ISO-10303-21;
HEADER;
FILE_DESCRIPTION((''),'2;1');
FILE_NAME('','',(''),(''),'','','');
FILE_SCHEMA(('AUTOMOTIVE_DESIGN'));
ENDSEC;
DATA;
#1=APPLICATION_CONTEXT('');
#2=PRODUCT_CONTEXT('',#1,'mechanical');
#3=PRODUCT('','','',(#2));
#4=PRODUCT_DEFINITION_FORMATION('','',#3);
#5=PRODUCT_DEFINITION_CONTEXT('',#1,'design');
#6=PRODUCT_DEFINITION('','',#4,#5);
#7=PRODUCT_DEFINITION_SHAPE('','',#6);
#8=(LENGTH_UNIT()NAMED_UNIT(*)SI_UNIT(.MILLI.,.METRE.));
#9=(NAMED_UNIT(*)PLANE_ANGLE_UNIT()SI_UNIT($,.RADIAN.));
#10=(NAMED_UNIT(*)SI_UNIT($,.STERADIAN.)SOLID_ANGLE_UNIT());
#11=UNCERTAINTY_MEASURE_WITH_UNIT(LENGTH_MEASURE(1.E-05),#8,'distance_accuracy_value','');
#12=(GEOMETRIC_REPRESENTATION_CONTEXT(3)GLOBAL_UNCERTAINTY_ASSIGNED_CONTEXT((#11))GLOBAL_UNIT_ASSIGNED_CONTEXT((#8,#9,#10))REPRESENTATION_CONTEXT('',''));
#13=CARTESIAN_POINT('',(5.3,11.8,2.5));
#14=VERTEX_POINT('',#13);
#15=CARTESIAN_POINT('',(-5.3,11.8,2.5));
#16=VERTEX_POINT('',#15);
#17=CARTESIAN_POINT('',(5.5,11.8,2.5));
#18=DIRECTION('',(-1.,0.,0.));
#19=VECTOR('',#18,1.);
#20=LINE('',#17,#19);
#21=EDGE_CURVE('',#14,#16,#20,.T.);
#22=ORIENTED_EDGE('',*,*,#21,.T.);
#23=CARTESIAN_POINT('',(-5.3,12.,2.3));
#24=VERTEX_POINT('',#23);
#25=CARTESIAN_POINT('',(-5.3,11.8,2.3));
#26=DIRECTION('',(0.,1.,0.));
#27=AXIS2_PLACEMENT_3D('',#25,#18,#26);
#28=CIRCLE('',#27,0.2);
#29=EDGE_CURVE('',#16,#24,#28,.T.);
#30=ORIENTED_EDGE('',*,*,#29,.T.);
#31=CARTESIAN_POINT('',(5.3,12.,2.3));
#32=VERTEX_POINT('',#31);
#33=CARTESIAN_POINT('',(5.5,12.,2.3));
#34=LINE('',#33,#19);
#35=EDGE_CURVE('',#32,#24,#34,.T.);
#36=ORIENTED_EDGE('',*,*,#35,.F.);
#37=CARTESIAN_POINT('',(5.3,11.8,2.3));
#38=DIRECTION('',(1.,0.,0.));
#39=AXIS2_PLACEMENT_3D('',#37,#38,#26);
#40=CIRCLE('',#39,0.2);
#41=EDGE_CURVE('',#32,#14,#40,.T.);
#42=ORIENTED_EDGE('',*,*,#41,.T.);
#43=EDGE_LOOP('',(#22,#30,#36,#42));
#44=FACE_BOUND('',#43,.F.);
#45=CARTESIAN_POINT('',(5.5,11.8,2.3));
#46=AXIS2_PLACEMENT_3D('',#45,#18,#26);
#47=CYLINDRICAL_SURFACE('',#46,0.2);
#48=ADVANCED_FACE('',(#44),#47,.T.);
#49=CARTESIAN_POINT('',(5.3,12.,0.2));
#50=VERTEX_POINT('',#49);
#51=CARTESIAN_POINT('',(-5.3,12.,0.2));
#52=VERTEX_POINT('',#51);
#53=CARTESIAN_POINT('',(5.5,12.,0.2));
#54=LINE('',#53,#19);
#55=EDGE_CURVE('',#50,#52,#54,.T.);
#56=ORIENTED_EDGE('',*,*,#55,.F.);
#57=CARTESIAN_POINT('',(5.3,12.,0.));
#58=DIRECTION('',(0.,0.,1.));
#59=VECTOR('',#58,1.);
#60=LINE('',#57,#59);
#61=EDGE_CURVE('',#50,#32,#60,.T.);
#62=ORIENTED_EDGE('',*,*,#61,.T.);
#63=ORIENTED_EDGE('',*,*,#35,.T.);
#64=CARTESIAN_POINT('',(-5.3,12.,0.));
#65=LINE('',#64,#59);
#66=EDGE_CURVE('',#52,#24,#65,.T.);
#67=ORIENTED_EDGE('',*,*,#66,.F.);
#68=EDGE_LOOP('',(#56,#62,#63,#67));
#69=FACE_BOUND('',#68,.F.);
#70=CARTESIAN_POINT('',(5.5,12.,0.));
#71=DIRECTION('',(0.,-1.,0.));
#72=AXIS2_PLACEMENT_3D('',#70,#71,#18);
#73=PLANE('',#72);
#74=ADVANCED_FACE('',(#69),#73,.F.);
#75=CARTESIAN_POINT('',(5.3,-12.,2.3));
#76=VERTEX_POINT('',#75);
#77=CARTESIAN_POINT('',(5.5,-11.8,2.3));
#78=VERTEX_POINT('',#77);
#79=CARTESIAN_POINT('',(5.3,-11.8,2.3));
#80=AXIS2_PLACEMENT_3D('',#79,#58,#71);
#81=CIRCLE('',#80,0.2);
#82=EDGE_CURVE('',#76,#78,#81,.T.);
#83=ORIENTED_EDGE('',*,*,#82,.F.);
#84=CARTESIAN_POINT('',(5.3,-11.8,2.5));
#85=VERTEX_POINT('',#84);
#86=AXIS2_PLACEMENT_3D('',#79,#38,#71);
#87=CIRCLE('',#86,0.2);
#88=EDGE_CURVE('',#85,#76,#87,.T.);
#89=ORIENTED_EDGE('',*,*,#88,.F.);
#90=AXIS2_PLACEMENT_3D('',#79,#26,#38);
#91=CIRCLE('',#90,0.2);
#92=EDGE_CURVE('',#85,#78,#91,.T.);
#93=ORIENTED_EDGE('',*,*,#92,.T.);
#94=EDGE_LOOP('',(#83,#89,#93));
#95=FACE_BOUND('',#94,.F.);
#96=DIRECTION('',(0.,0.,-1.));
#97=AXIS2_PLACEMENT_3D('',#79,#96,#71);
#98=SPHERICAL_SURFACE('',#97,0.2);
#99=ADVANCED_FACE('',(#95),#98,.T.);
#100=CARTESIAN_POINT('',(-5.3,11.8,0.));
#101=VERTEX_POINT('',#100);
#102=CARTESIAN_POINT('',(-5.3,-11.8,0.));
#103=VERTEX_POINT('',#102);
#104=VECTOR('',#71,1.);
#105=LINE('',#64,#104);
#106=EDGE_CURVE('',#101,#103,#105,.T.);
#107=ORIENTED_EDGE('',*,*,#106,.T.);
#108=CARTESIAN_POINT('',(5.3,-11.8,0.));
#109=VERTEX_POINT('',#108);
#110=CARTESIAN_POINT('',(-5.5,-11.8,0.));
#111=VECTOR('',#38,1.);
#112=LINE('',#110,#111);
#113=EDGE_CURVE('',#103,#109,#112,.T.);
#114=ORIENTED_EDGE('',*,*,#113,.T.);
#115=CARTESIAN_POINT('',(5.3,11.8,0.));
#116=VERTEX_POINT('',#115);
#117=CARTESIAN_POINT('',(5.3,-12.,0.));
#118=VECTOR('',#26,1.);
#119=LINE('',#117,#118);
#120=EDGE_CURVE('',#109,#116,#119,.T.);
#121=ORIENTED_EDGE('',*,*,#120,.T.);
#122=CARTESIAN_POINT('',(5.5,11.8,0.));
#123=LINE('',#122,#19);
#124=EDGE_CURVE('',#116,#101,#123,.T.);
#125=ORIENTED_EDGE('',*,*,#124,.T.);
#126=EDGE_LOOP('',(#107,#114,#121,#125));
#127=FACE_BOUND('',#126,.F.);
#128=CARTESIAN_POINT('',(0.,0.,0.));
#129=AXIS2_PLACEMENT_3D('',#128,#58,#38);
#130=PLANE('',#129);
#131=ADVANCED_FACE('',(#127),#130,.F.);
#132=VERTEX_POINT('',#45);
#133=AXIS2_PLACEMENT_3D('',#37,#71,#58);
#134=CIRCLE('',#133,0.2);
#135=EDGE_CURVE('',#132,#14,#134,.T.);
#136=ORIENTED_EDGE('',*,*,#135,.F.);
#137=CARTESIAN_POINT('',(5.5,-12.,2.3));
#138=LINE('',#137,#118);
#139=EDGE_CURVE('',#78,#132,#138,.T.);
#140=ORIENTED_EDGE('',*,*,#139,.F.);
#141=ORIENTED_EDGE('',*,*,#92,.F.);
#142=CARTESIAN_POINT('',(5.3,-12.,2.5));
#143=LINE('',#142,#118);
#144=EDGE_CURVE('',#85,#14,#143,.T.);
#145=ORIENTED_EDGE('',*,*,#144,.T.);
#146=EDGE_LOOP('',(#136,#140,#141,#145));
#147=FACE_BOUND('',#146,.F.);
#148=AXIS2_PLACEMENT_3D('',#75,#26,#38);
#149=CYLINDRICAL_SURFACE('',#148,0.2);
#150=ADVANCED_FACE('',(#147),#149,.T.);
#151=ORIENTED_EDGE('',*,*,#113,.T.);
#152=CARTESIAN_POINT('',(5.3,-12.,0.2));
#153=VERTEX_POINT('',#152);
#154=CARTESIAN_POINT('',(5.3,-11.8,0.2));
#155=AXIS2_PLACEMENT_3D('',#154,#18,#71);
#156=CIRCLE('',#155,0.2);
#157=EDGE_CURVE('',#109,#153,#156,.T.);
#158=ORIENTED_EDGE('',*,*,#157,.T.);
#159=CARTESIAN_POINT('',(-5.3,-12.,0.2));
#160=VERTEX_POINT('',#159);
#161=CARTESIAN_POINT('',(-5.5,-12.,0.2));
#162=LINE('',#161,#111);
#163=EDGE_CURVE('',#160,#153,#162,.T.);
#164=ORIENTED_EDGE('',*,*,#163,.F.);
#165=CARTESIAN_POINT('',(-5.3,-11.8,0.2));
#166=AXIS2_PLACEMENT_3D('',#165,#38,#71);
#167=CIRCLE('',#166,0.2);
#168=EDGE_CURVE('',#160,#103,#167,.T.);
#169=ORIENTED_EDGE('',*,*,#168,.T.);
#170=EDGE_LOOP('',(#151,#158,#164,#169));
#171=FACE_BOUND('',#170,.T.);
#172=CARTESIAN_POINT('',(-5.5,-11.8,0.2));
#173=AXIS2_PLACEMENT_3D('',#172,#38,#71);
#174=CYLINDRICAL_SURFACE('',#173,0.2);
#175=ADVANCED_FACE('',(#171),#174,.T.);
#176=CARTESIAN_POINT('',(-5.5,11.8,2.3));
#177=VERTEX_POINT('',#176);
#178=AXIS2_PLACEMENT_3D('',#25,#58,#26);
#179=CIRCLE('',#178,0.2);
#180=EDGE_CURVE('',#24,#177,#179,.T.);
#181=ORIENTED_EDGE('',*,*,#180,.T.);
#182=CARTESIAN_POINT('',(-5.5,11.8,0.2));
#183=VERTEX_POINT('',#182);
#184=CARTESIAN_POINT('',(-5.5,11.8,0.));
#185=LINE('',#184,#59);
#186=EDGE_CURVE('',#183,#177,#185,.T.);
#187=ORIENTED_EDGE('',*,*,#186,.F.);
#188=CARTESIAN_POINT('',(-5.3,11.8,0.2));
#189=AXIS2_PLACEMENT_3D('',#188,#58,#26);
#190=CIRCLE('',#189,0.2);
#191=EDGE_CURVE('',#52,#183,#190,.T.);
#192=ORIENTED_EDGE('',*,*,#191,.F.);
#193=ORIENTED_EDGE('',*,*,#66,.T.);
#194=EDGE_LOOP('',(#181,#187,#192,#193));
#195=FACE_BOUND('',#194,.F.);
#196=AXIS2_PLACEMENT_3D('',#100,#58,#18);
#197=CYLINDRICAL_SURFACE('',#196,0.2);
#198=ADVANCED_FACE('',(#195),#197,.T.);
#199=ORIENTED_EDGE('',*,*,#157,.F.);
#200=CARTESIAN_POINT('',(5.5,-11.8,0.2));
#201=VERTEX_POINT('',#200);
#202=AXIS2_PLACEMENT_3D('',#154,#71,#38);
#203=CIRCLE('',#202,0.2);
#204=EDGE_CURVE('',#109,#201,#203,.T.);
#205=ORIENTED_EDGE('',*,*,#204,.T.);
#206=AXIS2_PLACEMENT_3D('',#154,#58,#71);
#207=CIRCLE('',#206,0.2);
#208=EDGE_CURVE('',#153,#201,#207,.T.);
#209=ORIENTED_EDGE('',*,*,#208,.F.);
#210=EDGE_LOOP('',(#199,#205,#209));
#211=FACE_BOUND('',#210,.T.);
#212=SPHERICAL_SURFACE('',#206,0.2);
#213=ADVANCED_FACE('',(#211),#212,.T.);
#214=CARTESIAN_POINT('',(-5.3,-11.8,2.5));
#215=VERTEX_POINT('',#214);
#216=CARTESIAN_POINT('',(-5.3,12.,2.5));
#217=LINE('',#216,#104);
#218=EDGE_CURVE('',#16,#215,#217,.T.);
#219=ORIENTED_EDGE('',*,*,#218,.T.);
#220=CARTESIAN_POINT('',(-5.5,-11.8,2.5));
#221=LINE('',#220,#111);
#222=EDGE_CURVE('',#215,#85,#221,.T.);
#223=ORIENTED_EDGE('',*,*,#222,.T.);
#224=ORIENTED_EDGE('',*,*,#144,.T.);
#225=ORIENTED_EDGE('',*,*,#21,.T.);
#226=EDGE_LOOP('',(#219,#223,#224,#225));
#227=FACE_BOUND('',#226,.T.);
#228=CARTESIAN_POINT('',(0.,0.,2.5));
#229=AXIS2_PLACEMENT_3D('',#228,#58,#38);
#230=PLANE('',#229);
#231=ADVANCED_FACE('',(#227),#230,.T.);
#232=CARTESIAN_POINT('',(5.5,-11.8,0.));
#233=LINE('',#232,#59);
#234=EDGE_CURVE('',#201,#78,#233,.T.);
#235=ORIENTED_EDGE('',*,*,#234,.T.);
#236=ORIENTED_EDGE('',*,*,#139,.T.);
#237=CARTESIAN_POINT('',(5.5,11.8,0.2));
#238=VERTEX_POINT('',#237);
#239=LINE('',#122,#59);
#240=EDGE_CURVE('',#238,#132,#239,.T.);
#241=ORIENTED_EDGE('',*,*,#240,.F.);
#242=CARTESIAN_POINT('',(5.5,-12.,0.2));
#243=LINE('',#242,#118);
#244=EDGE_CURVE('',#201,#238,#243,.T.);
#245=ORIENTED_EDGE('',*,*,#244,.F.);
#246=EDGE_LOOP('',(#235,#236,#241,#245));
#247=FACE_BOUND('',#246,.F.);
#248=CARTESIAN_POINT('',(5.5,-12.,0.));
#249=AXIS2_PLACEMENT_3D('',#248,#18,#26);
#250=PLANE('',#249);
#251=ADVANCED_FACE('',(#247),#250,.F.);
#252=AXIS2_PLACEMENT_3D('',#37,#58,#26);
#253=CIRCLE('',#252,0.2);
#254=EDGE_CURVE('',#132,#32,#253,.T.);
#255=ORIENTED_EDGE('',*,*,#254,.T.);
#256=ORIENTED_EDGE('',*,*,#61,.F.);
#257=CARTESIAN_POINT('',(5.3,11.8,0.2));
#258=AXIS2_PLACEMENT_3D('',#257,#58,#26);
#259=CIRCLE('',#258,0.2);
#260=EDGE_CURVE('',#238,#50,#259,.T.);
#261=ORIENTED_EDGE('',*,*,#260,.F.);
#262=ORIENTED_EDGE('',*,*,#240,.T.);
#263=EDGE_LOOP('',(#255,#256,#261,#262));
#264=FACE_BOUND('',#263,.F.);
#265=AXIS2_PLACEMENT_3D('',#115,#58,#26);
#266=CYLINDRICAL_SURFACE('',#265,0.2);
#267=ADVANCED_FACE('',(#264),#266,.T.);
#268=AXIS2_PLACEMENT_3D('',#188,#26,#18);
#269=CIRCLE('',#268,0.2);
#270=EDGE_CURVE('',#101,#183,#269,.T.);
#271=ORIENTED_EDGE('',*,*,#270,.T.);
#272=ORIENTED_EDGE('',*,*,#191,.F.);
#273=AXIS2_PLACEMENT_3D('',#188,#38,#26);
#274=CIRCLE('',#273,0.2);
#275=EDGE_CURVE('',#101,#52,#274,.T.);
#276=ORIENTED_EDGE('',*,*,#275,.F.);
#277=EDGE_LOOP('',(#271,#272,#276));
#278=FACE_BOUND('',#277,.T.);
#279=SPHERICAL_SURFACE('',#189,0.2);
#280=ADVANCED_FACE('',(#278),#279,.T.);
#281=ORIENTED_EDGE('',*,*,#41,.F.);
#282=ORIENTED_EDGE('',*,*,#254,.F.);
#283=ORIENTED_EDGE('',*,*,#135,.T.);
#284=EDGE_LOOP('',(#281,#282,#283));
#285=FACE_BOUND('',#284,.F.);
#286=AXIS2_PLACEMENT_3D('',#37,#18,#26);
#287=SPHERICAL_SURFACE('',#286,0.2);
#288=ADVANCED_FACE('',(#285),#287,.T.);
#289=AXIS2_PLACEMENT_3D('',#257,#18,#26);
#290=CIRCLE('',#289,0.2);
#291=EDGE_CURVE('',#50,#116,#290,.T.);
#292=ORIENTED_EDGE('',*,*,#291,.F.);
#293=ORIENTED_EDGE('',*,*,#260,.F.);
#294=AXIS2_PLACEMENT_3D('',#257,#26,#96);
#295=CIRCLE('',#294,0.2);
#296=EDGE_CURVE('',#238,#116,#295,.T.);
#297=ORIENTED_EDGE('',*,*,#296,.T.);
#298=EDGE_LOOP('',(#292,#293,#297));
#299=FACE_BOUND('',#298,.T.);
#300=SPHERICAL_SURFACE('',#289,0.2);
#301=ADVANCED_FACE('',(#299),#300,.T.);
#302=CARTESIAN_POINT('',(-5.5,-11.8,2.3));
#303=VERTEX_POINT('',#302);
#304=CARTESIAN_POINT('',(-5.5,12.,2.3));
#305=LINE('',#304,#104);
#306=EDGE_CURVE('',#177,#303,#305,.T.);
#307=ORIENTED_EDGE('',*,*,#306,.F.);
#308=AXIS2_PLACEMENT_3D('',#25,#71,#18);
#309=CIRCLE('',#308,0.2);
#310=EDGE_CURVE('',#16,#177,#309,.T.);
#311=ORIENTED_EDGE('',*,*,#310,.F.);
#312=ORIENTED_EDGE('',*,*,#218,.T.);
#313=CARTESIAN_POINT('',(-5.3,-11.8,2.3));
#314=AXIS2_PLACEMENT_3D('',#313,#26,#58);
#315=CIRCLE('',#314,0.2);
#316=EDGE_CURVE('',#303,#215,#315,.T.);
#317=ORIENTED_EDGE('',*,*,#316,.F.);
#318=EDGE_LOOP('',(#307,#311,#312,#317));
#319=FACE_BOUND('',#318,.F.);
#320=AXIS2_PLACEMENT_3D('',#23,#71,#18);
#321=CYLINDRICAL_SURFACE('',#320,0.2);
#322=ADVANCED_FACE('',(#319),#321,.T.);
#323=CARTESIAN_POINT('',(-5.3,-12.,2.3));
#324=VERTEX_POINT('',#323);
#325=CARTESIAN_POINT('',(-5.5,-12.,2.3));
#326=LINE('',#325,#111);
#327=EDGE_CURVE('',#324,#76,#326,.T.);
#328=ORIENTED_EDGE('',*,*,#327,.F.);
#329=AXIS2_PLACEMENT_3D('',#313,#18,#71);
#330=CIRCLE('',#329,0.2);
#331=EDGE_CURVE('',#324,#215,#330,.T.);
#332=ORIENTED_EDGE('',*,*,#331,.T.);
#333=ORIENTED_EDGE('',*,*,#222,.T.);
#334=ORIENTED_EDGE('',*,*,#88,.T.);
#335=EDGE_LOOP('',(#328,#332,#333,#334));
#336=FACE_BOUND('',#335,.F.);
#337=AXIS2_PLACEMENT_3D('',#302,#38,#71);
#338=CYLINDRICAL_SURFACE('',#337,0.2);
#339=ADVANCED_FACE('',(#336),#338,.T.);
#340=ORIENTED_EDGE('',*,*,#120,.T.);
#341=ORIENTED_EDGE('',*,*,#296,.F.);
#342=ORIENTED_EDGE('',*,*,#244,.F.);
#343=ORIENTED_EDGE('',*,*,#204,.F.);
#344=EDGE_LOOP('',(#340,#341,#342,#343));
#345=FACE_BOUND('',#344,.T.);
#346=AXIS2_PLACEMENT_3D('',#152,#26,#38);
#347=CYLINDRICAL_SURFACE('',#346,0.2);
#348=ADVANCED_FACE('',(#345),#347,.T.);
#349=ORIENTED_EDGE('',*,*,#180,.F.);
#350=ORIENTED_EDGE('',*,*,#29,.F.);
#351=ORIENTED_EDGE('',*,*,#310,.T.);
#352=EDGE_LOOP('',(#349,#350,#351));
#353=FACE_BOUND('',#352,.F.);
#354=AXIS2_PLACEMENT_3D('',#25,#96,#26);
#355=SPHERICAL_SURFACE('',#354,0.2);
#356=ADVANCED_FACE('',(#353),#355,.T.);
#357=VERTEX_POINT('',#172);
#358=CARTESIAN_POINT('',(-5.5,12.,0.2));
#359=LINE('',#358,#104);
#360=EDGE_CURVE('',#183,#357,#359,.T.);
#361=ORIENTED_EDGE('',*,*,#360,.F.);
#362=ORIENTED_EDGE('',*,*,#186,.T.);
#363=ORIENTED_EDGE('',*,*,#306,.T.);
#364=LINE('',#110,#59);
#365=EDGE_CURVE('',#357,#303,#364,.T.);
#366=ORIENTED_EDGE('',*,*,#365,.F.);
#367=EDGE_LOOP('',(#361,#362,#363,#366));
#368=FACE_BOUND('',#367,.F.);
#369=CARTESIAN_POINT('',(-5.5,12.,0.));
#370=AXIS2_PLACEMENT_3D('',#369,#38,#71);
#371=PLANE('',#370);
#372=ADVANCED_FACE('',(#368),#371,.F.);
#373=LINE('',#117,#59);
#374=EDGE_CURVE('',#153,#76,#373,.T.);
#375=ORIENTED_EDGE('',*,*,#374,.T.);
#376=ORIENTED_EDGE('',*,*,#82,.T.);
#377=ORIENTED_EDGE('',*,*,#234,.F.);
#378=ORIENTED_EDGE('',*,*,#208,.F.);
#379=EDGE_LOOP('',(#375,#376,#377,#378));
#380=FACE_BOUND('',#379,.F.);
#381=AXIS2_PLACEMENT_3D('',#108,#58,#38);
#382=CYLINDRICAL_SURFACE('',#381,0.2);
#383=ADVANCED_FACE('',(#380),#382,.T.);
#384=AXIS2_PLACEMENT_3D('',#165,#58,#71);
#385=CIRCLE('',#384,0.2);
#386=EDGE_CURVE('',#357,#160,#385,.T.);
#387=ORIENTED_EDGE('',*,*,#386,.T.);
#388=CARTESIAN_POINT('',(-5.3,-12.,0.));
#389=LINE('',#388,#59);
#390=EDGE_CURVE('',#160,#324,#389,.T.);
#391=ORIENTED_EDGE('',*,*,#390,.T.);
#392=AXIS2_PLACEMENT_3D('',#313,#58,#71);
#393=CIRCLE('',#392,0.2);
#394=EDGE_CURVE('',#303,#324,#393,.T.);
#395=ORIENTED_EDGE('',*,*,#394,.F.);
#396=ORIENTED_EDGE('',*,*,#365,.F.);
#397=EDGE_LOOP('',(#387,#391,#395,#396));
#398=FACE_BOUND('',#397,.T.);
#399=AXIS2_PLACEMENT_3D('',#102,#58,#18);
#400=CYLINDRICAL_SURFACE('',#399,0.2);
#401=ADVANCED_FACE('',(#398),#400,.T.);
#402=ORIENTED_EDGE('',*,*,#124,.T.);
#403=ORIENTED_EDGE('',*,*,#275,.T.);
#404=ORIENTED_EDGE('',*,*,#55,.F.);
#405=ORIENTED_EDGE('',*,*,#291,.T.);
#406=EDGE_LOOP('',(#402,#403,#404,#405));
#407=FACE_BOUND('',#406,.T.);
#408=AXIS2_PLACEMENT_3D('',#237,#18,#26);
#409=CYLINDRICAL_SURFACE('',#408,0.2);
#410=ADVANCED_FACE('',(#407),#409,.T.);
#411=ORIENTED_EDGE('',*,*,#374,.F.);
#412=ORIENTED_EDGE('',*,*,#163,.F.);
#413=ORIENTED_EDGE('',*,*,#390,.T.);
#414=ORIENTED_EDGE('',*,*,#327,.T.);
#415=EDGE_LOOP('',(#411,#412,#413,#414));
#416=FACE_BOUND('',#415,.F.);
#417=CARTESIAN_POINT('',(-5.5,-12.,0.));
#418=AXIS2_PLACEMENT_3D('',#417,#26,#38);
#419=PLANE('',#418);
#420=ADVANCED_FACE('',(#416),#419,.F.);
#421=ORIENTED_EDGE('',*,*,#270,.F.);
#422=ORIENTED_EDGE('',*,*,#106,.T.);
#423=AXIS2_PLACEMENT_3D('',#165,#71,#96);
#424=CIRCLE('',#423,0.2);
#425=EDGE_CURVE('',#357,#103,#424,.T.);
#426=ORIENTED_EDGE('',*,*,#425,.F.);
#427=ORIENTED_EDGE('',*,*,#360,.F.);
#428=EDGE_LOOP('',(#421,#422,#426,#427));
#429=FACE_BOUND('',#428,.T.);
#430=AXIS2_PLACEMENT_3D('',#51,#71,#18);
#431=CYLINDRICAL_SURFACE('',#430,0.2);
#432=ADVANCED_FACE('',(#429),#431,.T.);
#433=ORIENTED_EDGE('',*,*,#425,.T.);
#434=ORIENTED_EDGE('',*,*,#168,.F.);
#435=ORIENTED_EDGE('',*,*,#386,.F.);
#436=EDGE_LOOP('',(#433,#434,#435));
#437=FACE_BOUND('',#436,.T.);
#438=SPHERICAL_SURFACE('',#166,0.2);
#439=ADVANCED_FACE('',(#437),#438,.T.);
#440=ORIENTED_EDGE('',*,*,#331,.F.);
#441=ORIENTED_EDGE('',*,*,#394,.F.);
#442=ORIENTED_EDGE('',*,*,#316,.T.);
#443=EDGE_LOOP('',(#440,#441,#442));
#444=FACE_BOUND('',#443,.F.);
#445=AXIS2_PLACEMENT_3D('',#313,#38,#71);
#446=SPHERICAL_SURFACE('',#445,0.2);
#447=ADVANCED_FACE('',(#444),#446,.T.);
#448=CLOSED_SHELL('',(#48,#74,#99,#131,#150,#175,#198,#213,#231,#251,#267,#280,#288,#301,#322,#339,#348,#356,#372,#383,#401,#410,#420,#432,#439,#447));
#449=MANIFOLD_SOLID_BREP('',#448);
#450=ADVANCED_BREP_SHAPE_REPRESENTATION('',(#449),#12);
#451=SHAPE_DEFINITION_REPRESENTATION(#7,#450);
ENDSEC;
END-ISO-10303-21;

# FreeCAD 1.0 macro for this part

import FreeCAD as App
import Part
import Sketcher

V = App.Vector
Q = App.Units.Quantity


def add_polygon(sketch, points):
    """Adds a closed chain of lines whose ends are joined by coincident constraints."""
    first, n = sketch.GeometryCount, len(points)
    for a, b in zip(points, points[1:] + points[:1]):
        sketch.addGeometry(Part.LineSegment(App.Vector(*a, 0), App.Vector(*b, 0)), False)
    for i in range(n):
        sketch.addConstraint(Sketcher.Constraint("Coincident", first + i, 2, first + (i + 1) % n, 1))

doc = App.newDocument("Part")
body = doc.addObject("PartDesign::Body", "Body")

sketch1 = doc.addObject("Sketcher::SketchObject", "Sketch")
body.addObject(sketch1)
sketch1.AttachmentSupport = (doc.XY_Plane, [""])
sketch1.MapMode = "FlatFace"
add_polygon(sketch1, [(-6, 12), (-6, -12), (6, -12), (6, 12)])
sketch1.addConstraint(Sketcher.Constraint("Vertical", 0))
sketch1.addConstraint(Sketcher.Constraint("Horizontal", 1))
sketch1.addConstraint(Sketcher.Constraint("Vertical", 2))
sketch1.addConstraint(Sketcher.Constraint("Horizontal", 3))
sketch1.addConstraint(Sketcher.Constraint("Symmetric", 0, 2, 2, 2, -1, 1))
sketch1.addConstraint(Sketcher.Constraint("DistanceX", 1, 1, 1, 2, Q("11 mm")))
sketch1.addConstraint(Sketcher.Constraint("DistanceY", 0, 2, 0, 1, Q("24 mm")))
pad1 = doc.addObject("PartDesign::Pad", "Pad")
body.addObject(pad1)
pad1.Profile = sketch1
pad1.Length = 2.5
doc.recompute()

fillet = doc.addObject("PartDesign::Fillet", "Fillet")
body.addObject(fillet)
fillet.Base = (pad1, ["Edge1"])
fillet.UseAllEdges = True
fillet.Radius = 0.2

doc.recompute()
